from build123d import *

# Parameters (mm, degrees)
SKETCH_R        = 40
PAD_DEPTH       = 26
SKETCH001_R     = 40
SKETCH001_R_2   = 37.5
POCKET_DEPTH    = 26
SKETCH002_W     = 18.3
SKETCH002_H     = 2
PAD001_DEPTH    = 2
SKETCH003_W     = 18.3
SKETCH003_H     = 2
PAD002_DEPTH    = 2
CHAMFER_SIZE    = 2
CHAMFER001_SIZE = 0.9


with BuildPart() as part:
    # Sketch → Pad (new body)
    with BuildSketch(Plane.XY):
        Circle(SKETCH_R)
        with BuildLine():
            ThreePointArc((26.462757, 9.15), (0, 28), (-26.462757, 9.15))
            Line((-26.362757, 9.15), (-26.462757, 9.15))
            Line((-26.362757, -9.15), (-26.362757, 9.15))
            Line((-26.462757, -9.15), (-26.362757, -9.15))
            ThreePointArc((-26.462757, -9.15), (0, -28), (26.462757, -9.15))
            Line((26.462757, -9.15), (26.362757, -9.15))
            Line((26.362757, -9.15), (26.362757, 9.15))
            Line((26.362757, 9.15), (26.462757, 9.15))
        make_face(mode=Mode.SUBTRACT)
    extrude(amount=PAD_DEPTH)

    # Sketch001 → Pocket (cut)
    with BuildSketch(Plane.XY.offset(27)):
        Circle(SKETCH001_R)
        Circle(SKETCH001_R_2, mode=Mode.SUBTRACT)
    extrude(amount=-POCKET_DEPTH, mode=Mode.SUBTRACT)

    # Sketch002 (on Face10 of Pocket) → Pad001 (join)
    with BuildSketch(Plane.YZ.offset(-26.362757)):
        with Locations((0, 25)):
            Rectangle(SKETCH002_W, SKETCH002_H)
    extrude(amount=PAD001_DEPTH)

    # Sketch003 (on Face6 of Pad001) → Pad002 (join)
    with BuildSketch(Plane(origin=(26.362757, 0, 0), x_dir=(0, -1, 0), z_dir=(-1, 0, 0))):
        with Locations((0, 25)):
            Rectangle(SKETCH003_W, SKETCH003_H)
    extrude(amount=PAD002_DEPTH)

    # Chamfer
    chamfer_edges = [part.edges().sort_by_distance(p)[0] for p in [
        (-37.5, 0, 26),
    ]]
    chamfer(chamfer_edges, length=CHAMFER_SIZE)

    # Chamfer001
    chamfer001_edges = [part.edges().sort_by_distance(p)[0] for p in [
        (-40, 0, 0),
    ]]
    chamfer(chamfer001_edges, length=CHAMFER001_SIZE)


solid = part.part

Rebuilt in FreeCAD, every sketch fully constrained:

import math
import FreeCAD as App
import Part
import Sketcher
Q = App.Units.Quantity


def edges_at(feature, points):
    """Names of the edges that pass closest to the given points."""
    edges = feature.Shape.Edges
    near = lambda p: min(range(len(edges)), key=lambda i: edges[i].distToShape(Part.Vertex(*p))[0])
    return sorted({f"Edge{near(p) + 1}" for p in points})

doc = App.newDocument("Part")
body = doc.addObject("PartDesign::Body", "Body")

sketch1 = body.newObject("Sketcher::SketchObject", "Sketch")
sketch1.AttachmentSupport = (doc.getObject("XY_Plane"), [""])
sketch1.MapMode = "FlatFace"
sketch1.addGeometry([
    Part.Circle(App.Vector(0, 0, 0), App.Vector(0, 0, 1), 40),
    Part.ArcOfCircle(Part.Circle(App.Vector(0, 0, 0), App.Vector(0, 0, 1), 28), math.radians(19), math.radians(161)),
    Part.LineSegment(App.Vector(26.46, 9.15, 0), App.Vector(26.36, 9.15, 0)),
    Part.LineSegment(App.Vector(26.36, 9.15, 0), App.Vector(26.36, -9.15, 0)),
    Part.LineSegment(App.Vector(26.36, -9.15, 0), App.Vector(26.46, -9.15, 0)),
    Part.ArcOfCircle(Part.Circle(App.Vector(0, 0, 0), App.Vector(0, 0, 1), 28), math.radians(-161), math.radians(-19)),
    Part.LineSegment(App.Vector(-26.46, -9.15, 0), App.Vector(-26.36, -9.15, 0)),
    Part.LineSegment(App.Vector(-26.36, -9.15, 0), App.Vector(-26.36, 9.15, 0)),
    Part.LineSegment(App.Vector(-26.36, 9.15, 0), App.Vector(-26.46, 9.15, 0)),
], False)
sketch1.addConstraint([
    Sketcher.Constraint("Coincident", 1, 1, 2, 1),
    Sketcher.Constraint("Coincident", 2, 2, 3, 1),
    Sketcher.Constraint("Coincident", 3, 2, 4, 1),
    Sketcher.Constraint("Coincident", 4, 2, 5, 2),
    Sketcher.Constraint("Coincident", 5, 1, 6, 1),
    Sketcher.Constraint("Coincident", 6, 2, 7, 1),
    Sketcher.Constraint("Coincident", 7, 2, 8, 1),
    Sketcher.Constraint("Coincident", 8, 2, 1, 2),
    Sketcher.Constraint("Horizontal", 2),
    Sketcher.Constraint("Vertical", 3),
    Sketcher.Constraint("Horizontal", 4),
    Sketcher.Constraint("Horizontal", 6),
    Sketcher.Constraint("Vertical", 7),
    Sketcher.Constraint("Horizontal", 8),
    Sketcher.Constraint("Coincident", 0, 3, -1, 1),
    Sketcher.Constraint("Coincident", 1, 3, -1, 1),
    Sketcher.Constraint("Coincident", 5, 3, -1, 1),
    Sketcher.Constraint("Equal", 1, 5),
    Sketcher.Constraint("Symmetric", 2, 2, 6, 2, -1, 1),
    Sketcher.Constraint("Horizontal", 4, 2, 5, 1),
    Sketcher.Constraint("Horizontal", 2, 2, 7, 2),
    Sketcher.Constraint("Diameter", 0, Q("80 mm")),
    Sketcher.Constraint("Radius", 1, Q("28 mm")),
    Sketcher.Constraint("DistanceX", 2, 2, 2, 1, Q("0.1 mm")),
    Sketcher.Constraint("DistanceY", 3, 2, 3, 1, Q("18.3 mm")),
])
pad1 = body.newObject("PartDesign::Pad", "Pad")
pad1.Profile = sketch1
pad1.Length = 26

sketch2 = body.newObject("Sketcher::SketchObject", "Sketch001")
sketch2.AttachmentSupport = (doc.getObject("XY_Plane"), [""])
sketch2.MapMode = "FlatFace"
sketch2.AttachmentOffset = App.Placement(App.Vector(0, 0, 27), App.Rotation())
sketch2.addGeometry([
    Part.Circle(App.Vector(0, 0, 0), App.Vector(0, 0, 1), 40),
    Part.Circle(App.Vector(0, 0, 0), App.Vector(0, 0, 1), 38),
], False)
sketch2.addConstraint([
    Sketcher.Constraint("Coincident", 0, 3, -1, 1),
    Sketcher.Constraint("Coincident", 1, 3, -1, 1),
    Sketcher.Constraint("Diameter", 0, Q("80 mm")),
    Sketcher.Constraint("Diameter", 1, Q("75 mm")),
])
pocket1 = body.newObject("PartDesign::Pocket", "Pocket")
pocket1.Profile = sketch2
pocket1.Length = 26

sketch3 = body.newObject("Sketcher::SketchObject", "Sketch002")
sketch3.AttachmentSupport = (doc.getObject("YZ_Plane"), [""])
sketch3.MapMode = "FlatFace"
sketch3.AttachmentOffset = App.Placement(App.Vector(0, 0, -26.362757), App.Rotation())
sketch3.addGeometry([
    Part.LineSegment(App.Vector(-9.2, 26, 0), App.Vector(-9.2, 24, 0)),
    Part.LineSegment(App.Vector(-9.2, 24, 0), App.Vector(9.2, 24, 0)),
    Part.LineSegment(App.Vector(9.2, 24, 0), App.Vector(9.2, 26, 0)),
    Part.LineSegment(App.Vector(9.2, 26, 0), App.Vector(-9.2, 26, 0)),
], False)
sketch3.addConstraint([
    Sketcher.Constraint("Coincident", 0, 2, 1, 1),
    Sketcher.Constraint("Coincident", 1, 2, 2, 1),
    Sketcher.Constraint("Coincident", 2, 2, 3, 1),
    Sketcher.Constraint("Coincident", 3, 2, 0, 1),
    Sketcher.Constraint("Vertical", 0),
    Sketcher.Constraint("Horizontal", 1),
    Sketcher.Constraint("Vertical", 2),
    Sketcher.Constraint("Horizontal", 3),
    Sketcher.Constraint("DistanceY", 0, 2, 0, 1, Q("2 mm")),
    Sketcher.Constraint("DistanceX", 1, 1, 1, 2, Q("18.3 mm")),
    Sketcher.Constraint("DistanceY", -1, 1, 0, 2, Q("24 mm")),
    Sketcher.Constraint("DistanceX", 0, 2, -1, 1, Q("9.15 mm")),
])
pad2 = body.newObject("PartDesign::Pad", "Pad001")
pad2.Profile = sketch3
pad2.Length = 2

sketch4 = body.newObject("Sketcher::SketchObject", "Sketch003")
sketch4.AttachmentSupport = (doc.getObject("YZ_Plane"), [""])
sketch4.MapMode = "FlatFace"
sketch4.AttachmentOffset = App.Placement(App.Vector(0, 0, 26.362757), App.Rotation())
sketch4.addGeometry([
    Part.LineSegment(App.Vector(9.2, 26, 0), App.Vector(9.2, 24, 0)),
    Part.LineSegment(App.Vector(9.2, 24, 0), App.Vector(-9.2, 24, 0)),
    Part.LineSegment(App.Vector(-9.2, 24, 0), App.Vector(-9.2, 26, 0)),
    Part.LineSegment(App.Vector(-9.2, 26, 0), App.Vector(9.2, 26, 0)),
], False)
sketch4.addConstraint([
    Sketcher.Constraint("Coincident", 0, 2, 1, 1),
    Sketcher.Constraint("Coincident", 1, 2, 2, 1),
    Sketcher.Constraint("Coincident", 2, 2, 3, 1),
    Sketcher.Constraint("Coincident", 3, 2, 0, 1),
    Sketcher.Constraint("Vertical", 0),
    Sketcher.Constraint("Horizontal", 1),
    Sketcher.Constraint("Vertical", 2),
    Sketcher.Constraint("Horizontal", 3),
    Sketcher.Constraint("DistanceY", 0, 2, 0, 1, Q("2 mm")),
    Sketcher.Constraint("DistanceX", 1, 2, 1, 1, Q("18.3 mm")),
    Sketcher.Constraint("DistanceY", -1, 1, 0, 2, Q("24 mm")),
    Sketcher.Constraint("DistanceX", -1, 1, 0, 2, Q("9.15 mm")),
])
pad3 = body.newObject("PartDesign::Pad", "Pad002")
pad3.Profile = sketch4
pad3.Length = 2
pad3.Reversed = True
doc.recompute()

chamfer = body.newObject("PartDesign::Chamfer", "Chamfer")
chamfer.Base = (pad3, edges_at(pad3, [(-37.5, 0, 26)]))
chamfer.Size = 2
doc.recompute()

chamfer2 = body.newObject("PartDesign::Chamfer", "Chamfer001")
chamfer2.Base = (chamfer, edges_at(chamfer, [(-40, 0, 0)]))
chamfer2.Size = 0.9

doc.recompute()
